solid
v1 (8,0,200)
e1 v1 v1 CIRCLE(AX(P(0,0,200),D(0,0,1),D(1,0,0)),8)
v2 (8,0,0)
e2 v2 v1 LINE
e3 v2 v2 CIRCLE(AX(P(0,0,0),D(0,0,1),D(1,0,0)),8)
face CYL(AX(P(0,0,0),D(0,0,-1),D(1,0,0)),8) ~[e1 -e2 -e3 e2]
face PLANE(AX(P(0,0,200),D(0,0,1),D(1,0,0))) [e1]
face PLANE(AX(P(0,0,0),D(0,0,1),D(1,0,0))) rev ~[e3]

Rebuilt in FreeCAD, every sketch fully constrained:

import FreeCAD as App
import Part
import Sketcher

V = App.Vector
Q = App.Units.Quantity

doc = App.newDocument("Part")
params = doc.addObject("Spreadsheet::Sheet", "Params")
for row, (alias, value) in enumerate([
    ("sketch1_diameter", "16 mm"),
    ("pad1_length", "200 mm"),
], start=1):
    params.set(f"A{row}", alias)
    params.set(f"B{row}", "=" + value)
    params.setAlias(f"B{row}", alias)

body = doc.addObject("PartDesign::Body", "Body")

# Sketch on XY plane
sketch1 = body.newObject("Sketcher::SketchObject", "Sketch")
sketch1.AttachmentSupport = (doc.getObject("XY_Plane"), [""])
sketch1.MapMode = "FlatFace"
sketch1.addGeometry(Part.Circle(V(0, 0, 0), V(0, 0, 1), 8), False)
sketch1.addConstraint([
    Sketcher.Constraint("Coincident", 0, 3, -1, 1),
    Sketcher.Constraint("Diameter", 0, Q("16 mm")),
])
sketch1.setExpression("Constraints[1]", "Params.sketch1_diameter")
pad1 = body.newObject("PartDesign::Pad", "Pad")
pad1.Profile = sketch1
pad1.setExpression("Length", "Params.pad1_length")

doc.recompute()
